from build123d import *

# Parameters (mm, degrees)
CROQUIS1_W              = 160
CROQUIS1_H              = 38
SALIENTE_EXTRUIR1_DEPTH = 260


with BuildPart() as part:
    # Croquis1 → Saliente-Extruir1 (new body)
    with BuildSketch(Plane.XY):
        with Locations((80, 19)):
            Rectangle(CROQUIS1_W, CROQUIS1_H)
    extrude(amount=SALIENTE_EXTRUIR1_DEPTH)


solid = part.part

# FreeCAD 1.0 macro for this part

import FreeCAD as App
import Part
import Sketcher

V = App.Vector


def add_polygon(sketch, points):
    """Adds a closed chain of lines whose ends are joined by coincident constraints."""
    first, n = sketch.GeometryCount, len(points)
    for a, b in zip(points, points[1:] + points[:1]):
        sketch.addGeometry(Part.LineSegment(App.Vector(*a, 0), App.Vector(*b, 0)), False)
    for i in range(n):
        sketch.addConstraint(Sketcher.Constraint("Coincident", first + i, 2, first + (i + 1) % n, 1))

doc = App.newDocument("Part")
params = doc.addObject("Spreadsheet::Sheet", "Params")
for row, (alias, value) in enumerate([
    ("sketch1_width", "160 mm"),
    ("sketch1_height", "38 mm"),
    ("pad1_length", "260 mm"),
], start=1):
    params.set(f"A{row}", alias)
    params.set(f"B{row}", "=" + value)
    params.setAlias(f"B{row}", alias)

body = doc.addObject("PartDesign::Body", "Body")

# Sketch on XY plane
sketch1 = doc.addObject("Sketcher::SketchObject", "Sketch")
body.addObject(sketch1)
sketch1.AttachmentSupport = (doc.XY_Plane, [""])
sketch1.MapMode = "FlatFace"
add_polygon(sketch1, [(0, 38), (0, 0), (160, 0), (160, 38)])  # lines 0-3
sketch1.addConstraint(Sketcher.Constraint("Vertical", 0))
sketch1.addConstraint(Sketcher.Constraint("Horizontal", 1))
sketch1.addConstraint(Sketcher.Constraint("Vertical", 2))
sketch1.addConstraint(Sketcher.Constraint("Horizontal", 3))
sketch1.addConstraint(Sketcher.Constraint("Coincident", 0, 2, -1, 1))
sketch1.addConstraint(Sketcher.Constraint("DistanceX", 1, 1, 1, 2, 160.0))
sketch1.addConstraint(Sketcher.Constraint("DistanceY", 0, 2, 0, 1, 38.0))
sketch1.setExpression("Constraints[9]", "Params.sketch1_width")
sketch1.setExpression("Constraints[10]", "Params.sketch1_height")
pad1 = doc.addObject("PartDesign::Pad", "Pad")
body.addObject(pad1)
pad1.Profile = sketch1
pad1.setExpression("Length", "Params.pad1_length")

doc.recompute()
